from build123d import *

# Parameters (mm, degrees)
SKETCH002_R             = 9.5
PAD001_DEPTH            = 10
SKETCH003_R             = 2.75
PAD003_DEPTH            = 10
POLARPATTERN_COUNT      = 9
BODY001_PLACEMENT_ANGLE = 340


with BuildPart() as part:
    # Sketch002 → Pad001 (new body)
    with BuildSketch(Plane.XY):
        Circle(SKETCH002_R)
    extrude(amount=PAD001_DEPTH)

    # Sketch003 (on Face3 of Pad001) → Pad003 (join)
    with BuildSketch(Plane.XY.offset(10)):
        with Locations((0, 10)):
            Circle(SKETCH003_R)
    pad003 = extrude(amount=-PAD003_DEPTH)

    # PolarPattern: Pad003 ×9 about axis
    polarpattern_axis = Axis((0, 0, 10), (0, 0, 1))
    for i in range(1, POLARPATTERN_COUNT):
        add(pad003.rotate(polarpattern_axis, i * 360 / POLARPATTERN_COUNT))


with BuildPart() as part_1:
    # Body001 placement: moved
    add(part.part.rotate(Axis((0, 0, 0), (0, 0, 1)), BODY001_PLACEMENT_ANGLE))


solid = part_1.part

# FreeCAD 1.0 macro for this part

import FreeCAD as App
import Part
import Sketcher
from FreeCAD import Vector

doc = App.newDocument("Part")
body = doc.addObject("PartDesign::Body", "Body")

# Sketch on XY plane
sketch1 = body.newObject("Sketcher::SketchObject", "Sketch")
sketch1.AttachmentSupport = (doc.getObject("XY_Plane"), [""])
sketch1.MapMode = "FlatFace"
sketch1.addGeometry(Part.Circle(Vector(0, 0, 0), Vector(0, 0, 1), 10), False)
sketch1.addConstraint([
    Sketcher.Constraint("Coincident", 0, 3, -1, 1),
    Sketcher.Constraint("Diameter", 0, 19.0),
])
pad1 = body.newObject("PartDesign::Pad", "Pad")
pad1.Profile = sketch1
pad1.Length = 10

# Sketch on XY plane
sketch2 = body.newObject("Sketcher::SketchObject", "Sketch001")
sketch2.AttachmentSupport = (doc.getObject("XY_Plane"), [""])
sketch2.MapMode = "FlatFace"
sketch2.AttachmentOffset = App.Placement(Vector(0, 0, 10), App.Rotation())
sketch2.addGeometry(Part.Circle(Vector(0, 10, 0), Vector(0, 0, 1), 2.8), False)
sketch2.addConstraint([
    Sketcher.Constraint("PointOnObject", 0, 3, -2),
    Sketcher.Constraint("Diameter", 0, 5.5),
    Sketcher.Constraint("DistanceY", -1, 1, 0, 3, 10.0),
])
pad2 = body.newObject("PartDesign::Pad", "Pad001")
pad2.Profile = sketch2
pad2.Length = 10
pad2.Reversed = True
doc.recompute()

polarpattern = body.newObject("PartDesign::PolarPattern", "PolarPattern")
polarpattern.Originals = [pad2]
polarpattern.Axis = (doc.getObject("Z_Axis"), [""])
polarpattern.Angle = 360
polarpattern.Occurrences = 9
body.Tip = polarpattern
body2 = doc.addObject("PartDesign::Body", "Body001")
doc.recompute()

body.Placement = App.Placement(Vector(0, 0, 0), App.Rotation(Vector(0, 0, 1), 340))
boolean = body2.newObject("PartDesign::Boolean", "Boolean")
boolean.Type = "Fuse"
boolean.addObjects([body])

doc.recompute()
